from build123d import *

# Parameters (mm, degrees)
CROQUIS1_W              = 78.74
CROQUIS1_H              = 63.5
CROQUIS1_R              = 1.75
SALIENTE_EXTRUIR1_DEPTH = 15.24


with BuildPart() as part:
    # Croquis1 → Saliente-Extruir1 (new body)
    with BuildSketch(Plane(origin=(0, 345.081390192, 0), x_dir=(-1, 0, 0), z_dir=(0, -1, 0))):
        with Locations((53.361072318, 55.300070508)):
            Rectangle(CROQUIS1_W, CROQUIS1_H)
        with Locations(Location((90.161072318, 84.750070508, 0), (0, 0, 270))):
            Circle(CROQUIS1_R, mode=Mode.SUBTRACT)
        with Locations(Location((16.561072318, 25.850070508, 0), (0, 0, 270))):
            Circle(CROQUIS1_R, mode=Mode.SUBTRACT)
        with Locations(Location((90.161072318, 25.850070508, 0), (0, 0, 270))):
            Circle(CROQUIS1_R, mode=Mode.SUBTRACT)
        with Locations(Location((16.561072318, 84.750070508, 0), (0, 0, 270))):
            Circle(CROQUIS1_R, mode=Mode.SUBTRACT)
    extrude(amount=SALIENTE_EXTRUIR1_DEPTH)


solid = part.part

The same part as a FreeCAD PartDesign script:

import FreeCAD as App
import Part
import Sketcher

V = App.Vector
Q = App.Units.Quantity

doc = App.newDocument("Part")
body = doc.addObject("PartDesign::Body", "Body")

# Sketch on XZ plane
sketch1 = doc.addObject("Sketcher::SketchObject", "Sketch")
body.addObject(sketch1)
sketch1.AttachmentSupport = (doc.XZ_Plane, [""])
sketch1.MapMode = "FlatFace"
sketch1.AttachmentOffset = App.Placement(V(0, 0, -345.08139), App.Rotation())
sketch1.addGeometry([
    Part.LineSegment(V(-14, -87.1, 0), V(-14, -23.6, 0)),  # 0
    Part.LineSegment(V(-14, -23.6, 0), V(-92.7, -23.6, 0)),  # 1
    Part.LineSegment(V(-92.7, -23.6, 0), V(-92.7, -87.1, 0)),  # 2
    Part.LineSegment(V(-92.7, -87.1, 0), V(-14, -87.1, 0)),  # 3
    Part.Circle(V(-16.6, -25.9, 0), V(0, 0, 1), 1.8),  # 4
    Part.Circle(V(-90.2, -25.9, 0), V(0, 0, 1), 1.8),  # 5
    Part.Circle(V(-16.6, -84.8, 0), V(0, 0, 1), 1.8),  # 6
    Part.Circle(V(-90.2, -84.8, 0), V(0, 0, 1), 1.8),  # 7
], False)
sketch1.addConstraint([
    Sketcher.Constraint("Coincident", 0, 2, 1, 1),
    Sketcher.Constraint("Coincident", 1, 2, 2, 1),
    Sketcher.Constraint("Coincident", 2, 2, 3, 1),
    Sketcher.Constraint("Coincident", 3, 2, 0, 1),
    Sketcher.Constraint("Vertical", 0),
    Sketcher.Constraint("Horizontal", 1),
    Sketcher.Constraint("Vertical", 2),
    Sketcher.Constraint("Horizontal", 3),
    Sketcher.Constraint("Equal", 4, 5),
    Sketcher.Constraint("Equal", 5, 6),
    Sketcher.Constraint("Equal", 6, 7),
    Sketcher.Constraint("Horizontal", 4, 3, 5, 3),
    Sketcher.Constraint("Horizontal", 6, 3, 7, 3),
    Sketcher.Constraint("Vertical", 4, 3, 6, 3),
    Sketcher.Constraint("Vertical", 5, 3, 7, 3),
    Sketcher.Constraint("DistanceX", 1, 2, 1, 1, Q("3.1 in")),
    Sketcher.Constraint("DistanceY", 0, 1, 0, 2, Q("2.5 in")),
    Sketcher.Constraint("Diameter", 4, Q("3.5 mm")),
    Sketcher.Constraint("DistanceX", 5, 3, 4, 3, Q("73.6 mm")),
    Sketcher.Constraint("DistanceY", 6, 3, 4, 3, Q("58.9 mm")),
    Sketcher.Constraint("DistanceX", 4, 3, 0, 2, Q("2.57 mm")),
    Sketcher.Constraint("DistanceY", 4, 3, 0, 2, Q("2.3 mm")),
    Sketcher.Constraint("DistanceY", 4, 3, -1, 1, Q("25.850071 mm")),
    Sketcher.Constraint("DistanceX", 4, 3, -1, 1, Q("16.561072 mm")),
])
pad1 = doc.addObject("PartDesign::Pad", "Pad")
body.addObject(pad1)
pad1.Profile = sketch1
pad1.Length = Q("0.6 in")

doc.recompute()
